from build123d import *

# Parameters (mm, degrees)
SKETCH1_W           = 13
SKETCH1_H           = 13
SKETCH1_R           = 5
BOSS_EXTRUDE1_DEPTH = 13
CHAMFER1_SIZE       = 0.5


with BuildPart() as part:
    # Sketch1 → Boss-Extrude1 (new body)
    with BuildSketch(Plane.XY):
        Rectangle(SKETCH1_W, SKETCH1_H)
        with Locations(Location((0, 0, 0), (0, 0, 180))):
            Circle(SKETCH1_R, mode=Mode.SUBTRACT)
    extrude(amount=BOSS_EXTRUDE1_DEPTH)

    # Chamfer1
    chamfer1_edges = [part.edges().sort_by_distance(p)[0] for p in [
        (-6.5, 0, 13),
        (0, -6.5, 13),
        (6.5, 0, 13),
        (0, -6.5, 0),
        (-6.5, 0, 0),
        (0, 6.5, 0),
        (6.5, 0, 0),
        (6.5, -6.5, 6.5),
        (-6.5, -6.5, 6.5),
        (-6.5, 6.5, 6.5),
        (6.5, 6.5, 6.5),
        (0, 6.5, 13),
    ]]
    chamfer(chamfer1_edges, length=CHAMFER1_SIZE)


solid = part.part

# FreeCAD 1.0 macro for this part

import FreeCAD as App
import Part
import Sketcher
from FreeCAD import Vector


def edges_at(feature, points):
    """Names of the edges that pass closest to the given points."""
    edges = feature.Shape.Edges
    near = lambda p: min(range(len(edges)), key=lambda i: edges[i].distToShape(Part.Vertex(*p))[0])
    return sorted({f"Edge{near(p) + 1}" for p in points})


def add_polygon(sketch, points):
    """Adds a closed chain of lines whose ends are joined by coincident constraints."""
    first, n = sketch.GeometryCount, len(points)
    for a, b in zip(points, points[1:] + points[:1]):
        sketch.addGeometry(Part.LineSegment(App.Vector(*a, 0), App.Vector(*b, 0)), False)
    for i in range(n):
        sketch.addConstraint(Sketcher.Constraint("Coincident", first + i, 2, first + (i + 1) % n, 1))

doc = App.newDocument("Part")
params = doc.addObject("Spreadsheet::Sheet", "Params")
for row, (alias, value) in enumerate([
    ("sketch1_diameter", "10 mm"),
    ("sketch1_width", "13 mm"),
    ("pad1_length", "13 mm"),
    ("chamfer_size", "0.5 mm"),
], start=1):
    params.set(f"A{row}", alias)
    params.set(f"B{row}", "=" + value)
    params.setAlias(f"B{row}", alias)

body = doc.addObject("PartDesign::Body", "Body")

# Sketch on XY plane
sketch1 = body.newObject("Sketcher::SketchObject", "Sketch")
sketch1.AttachmentSupport = (doc.getObject("XY_Plane"), [""])
sketch1.MapMode = "FlatFace"
add_polygon(sketch1, [(-6.5, 6.5), (-6.5, -6.5), (6.5, -6.5), (6.5, 6.5)])  # lines 0-3
sketch1.addGeometry(Part.Circle(Vector(0, 0, 0), Vector(0, 0, 1), 5), False)  # 4
sketch1.addConstraint(Sketcher.Constraint("Vertical", 0))
sketch1.addConstraint(Sketcher.Constraint("Horizontal", 1))
sketch1.addConstraint(Sketcher.Constraint("Vertical", 2))
sketch1.addConstraint(Sketcher.Constraint("Horizontal", 3))
sketch1.addConstraint(Sketcher.Constraint("Coincident", 4, 3, -1, 1))
sketch1.addConstraint(Sketcher.Constraint("Symmetric", 0, 2, 2, 2, -1, 1))
sketch1.addConstraint(Sketcher.Constraint("Equal", 3, 0))
sketch1.addConstraint(Sketcher.Constraint("Diameter", 4, 10.0))
sketch1.addConstraint(Sketcher.Constraint("DistanceX", 1, 1, 1, 2, 13.0))
sketch1.setExpression("Constraints[11]", "Params.sketch1_diameter")
sketch1.setExpression("Constraints[12]", "Params.sketch1_width")
pad1 = body.newObject("PartDesign::Pad", "Pad")
pad1.Profile = sketch1
pad1.setExpression("Length", "Params.pad1_length")
doc.recompute()

chamfer = body.newObject("PartDesign::Chamfer", "Chamfer")
chamfer.Base = (pad1, edges_at(pad1, [
    (-6.5, 0, 13),
    (0, -6.5, 13),
    (6.5, 0, 13),
    (0, -6.5, 0),
    (-6.5, 0, 0),
    (0, 6.5, 0),
    (6.5, 0, 0),
    (6.5, -6.5, 6.5),
    (-6.5, -6.5, 6.5),
    (-6.5, 6.5, 6.5),
    (6.5, 6.5, 6.5),
    (0, 6.5, 13),
]))
chamfer.setExpression("Size", "Params.chamfer_size")

doc.recompute()
